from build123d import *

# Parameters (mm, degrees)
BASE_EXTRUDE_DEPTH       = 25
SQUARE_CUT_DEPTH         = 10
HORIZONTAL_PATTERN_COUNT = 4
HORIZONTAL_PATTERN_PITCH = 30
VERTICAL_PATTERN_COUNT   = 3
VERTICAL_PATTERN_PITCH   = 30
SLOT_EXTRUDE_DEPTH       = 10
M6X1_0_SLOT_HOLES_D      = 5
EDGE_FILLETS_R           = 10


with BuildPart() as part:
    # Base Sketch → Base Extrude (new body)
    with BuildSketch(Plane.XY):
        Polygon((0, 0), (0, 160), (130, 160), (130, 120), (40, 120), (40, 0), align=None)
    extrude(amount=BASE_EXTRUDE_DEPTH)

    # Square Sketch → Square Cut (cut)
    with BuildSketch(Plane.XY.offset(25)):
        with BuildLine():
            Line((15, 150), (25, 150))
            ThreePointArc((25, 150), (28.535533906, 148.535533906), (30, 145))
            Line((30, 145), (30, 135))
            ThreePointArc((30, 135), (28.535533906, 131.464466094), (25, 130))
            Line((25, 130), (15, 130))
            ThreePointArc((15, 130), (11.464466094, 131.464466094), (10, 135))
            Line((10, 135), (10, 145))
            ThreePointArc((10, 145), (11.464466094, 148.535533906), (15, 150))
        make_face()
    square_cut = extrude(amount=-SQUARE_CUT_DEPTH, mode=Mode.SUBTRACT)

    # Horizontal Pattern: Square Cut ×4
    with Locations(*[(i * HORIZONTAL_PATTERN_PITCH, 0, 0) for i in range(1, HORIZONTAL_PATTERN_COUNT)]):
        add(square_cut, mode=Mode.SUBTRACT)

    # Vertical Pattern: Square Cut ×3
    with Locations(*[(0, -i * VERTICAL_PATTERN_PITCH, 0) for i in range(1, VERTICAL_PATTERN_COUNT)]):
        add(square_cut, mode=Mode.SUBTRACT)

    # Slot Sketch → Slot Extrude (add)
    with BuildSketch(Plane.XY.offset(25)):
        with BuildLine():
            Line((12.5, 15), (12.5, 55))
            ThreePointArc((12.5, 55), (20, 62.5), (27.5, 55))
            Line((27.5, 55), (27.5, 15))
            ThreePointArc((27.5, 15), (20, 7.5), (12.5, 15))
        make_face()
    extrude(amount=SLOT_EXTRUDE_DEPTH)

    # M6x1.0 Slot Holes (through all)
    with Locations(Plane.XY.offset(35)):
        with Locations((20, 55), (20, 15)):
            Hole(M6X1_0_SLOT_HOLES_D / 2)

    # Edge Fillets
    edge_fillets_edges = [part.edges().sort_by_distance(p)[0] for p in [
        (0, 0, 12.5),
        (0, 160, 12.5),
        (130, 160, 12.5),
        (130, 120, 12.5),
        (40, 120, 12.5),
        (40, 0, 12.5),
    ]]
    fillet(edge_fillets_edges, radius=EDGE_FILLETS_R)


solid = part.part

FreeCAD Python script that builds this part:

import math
import FreeCAD as App
import Part
import Sketcher
from FreeCAD import Vector


def edges_at(feature, points):
    """Names of the edges that pass closest to the given points."""
    edges = feature.Shape.Edges
    near = lambda p: min(range(len(edges)), key=lambda i: edges[i].distToShape(Part.Vertex(*p))[0])
    return sorted({f"Edge{near(p) + 1}" for p in points})


def add_polygon(sketch, points):
    """Adds a closed chain of lines whose ends are joined by coincident constraints."""
    first, n = sketch.GeometryCount, len(points)
    for a, b in zip(points, points[1:] + points[:1]):
        sketch.addGeometry(Part.LineSegment(App.Vector(*a, 0), App.Vector(*b, 0)), False)
    for i in range(n):
        sketch.addConstraint(Sketcher.Constraint("Coincident", first + i, 2, first + (i + 1) % n, 1))

doc = App.newDocument("Part")
body = doc.addObject("PartDesign::Body", "Body")

# Sketch on XY plane
sketch1 = doc.addObject("Sketcher::SketchObject", "Sketch")
body.addObject(sketch1)
sketch1.AttachmentSupport = (doc.XY_Plane, [""])
sketch1.MapMode = "FlatFace"
add_polygon(sketch1, [(0, 160), (0, 0), (40, 0), (40, 120), (130, 120), (130, 160)])  # lines 0-5
sketch1.addConstraint(Sketcher.Constraint("Vertical", 0))
sketch1.addConstraint(Sketcher.Constraint("Horizontal", 1))
sketch1.addConstraint(Sketcher.Constraint("Vertical", 2))
sketch1.addConstraint(Sketcher.Constraint("Horizontal", 3))
sketch1.addConstraint(Sketcher.Constraint("Vertical", 4))
sketch1.addConstraint(Sketcher.Constraint("Horizontal", 5))
sketch1.addConstraint(Sketcher.Constraint("Coincident", 0, 2, -1, 1))
sketch1.addConstraint(Sketcher.Constraint("Equal", 1, 4))
sketch1.addConstraint(Sketcher.Constraint("DistanceX", 1, 1, 1, 2, 40.0))
sketch1.addConstraint(Sketcher.Constraint("DistanceX", 3, 1, 3, 2, 90.0))
sketch1.addConstraint(Sketcher.Constraint("DistanceY", 0, 2, 0, 1, 160.0))
pad1 = doc.addObject("PartDesign::Pad", "Pad")
body.addObject(pad1)
pad1.Profile = sketch1
pad1.Length = 25

# Sketch on XY plane
sketch2 = doc.addObject("Sketcher::SketchObject", "Sketch001")
body.addObject(sketch2)
sketch2.AttachmentSupport = (doc.XY_Plane, [""])
sketch2.MapMode = "FlatFace"
sketch2.AttachmentOffset = App.Placement(Vector(0, 0, 25), App.Rotation())
sketch2.addGeometry(Part.LineSegment(Vector(25, 150, 0), Vector(15, 150, 0)), False)
sketch2.addGeometry(Part.ArcOfCircle(Part.Circle(Vector(15, 145, 0), Vector(0, 0, 1), 5), math.radians(90), math.radians(180)), False)
sketch2.addGeometry(Part.LineSegment(Vector(10, 145, 0), Vector(10, 135, 0)), False)
sketch2.addGeometry(Part.ArcOfCircle(Part.Circle(Vector(15, 135, 0), Vector(0, 0, 1), 5), math.radians(180), math.radians(270)), False)
sketch2.addGeometry(Part.LineSegment(Vector(15, 130, 0), Vector(25, 130, 0)), False)
sketch2.addGeometry(Part.ArcOfCircle(Part.Circle(Vector(25, 135, 0), Vector(0, 0, 1), 5), math.radians(-90), math.radians(0)), False)
sketch2.addGeometry(Part.LineSegment(Vector(30, 135, 0), Vector(30, 145, 0)), False)
sketch2.addGeometry(Part.ArcOfCircle(Part.Circle(Vector(25, 145, 0), Vector(0, 0, 1), 5), math.radians(0), math.radians(90)), False)
sketch2.addConstraint(Sketcher.Constraint("Tangent", 0, 2, 1, 1))
sketch2.addConstraint(Sketcher.Constraint("Tangent", 1, 2, 2, 1))
sketch2.addConstraint(Sketcher.Constraint("Tangent", 2, 2, 3, 1))
sketch2.addConstraint(Sketcher.Constraint("Tangent", 3, 2, 4, 1))
sketch2.addConstraint(Sketcher.Constraint("Tangent", 4, 2, 5, 1))
sketch2.addConstraint(Sketcher.Constraint("Tangent", 5, 2, 6, 1))
sketch2.addConstraint(Sketcher.Constraint("Tangent", 6, 2, 7, 1))
sketch2.addConstraint(Sketcher.Constraint("Tangent", 7, 2, 0, 1))
sketch2.addConstraint(Sketcher.Constraint("Horizontal", 0))
sketch2.addConstraint(Sketcher.Constraint("Vertical", 2))
sketch2.addConstraint(Sketcher.Constraint("Horizontal", 4))
sketch2.addConstraint(Sketcher.Constraint("Vertical", 6))
sketch2.addConstraint(Sketcher.Constraint("Equal", 1, 3))
sketch2.addConstraint(Sketcher.Constraint("Equal", 3, 5))
sketch2.addConstraint(Sketcher.Constraint("Equal", 5, 7))
sketch2.addConstraint(Sketcher.Constraint("Equal", 4, 2))
sketch2.addConstraint(Sketcher.Constraint("Radius", 1, 5.0))
sketch2.addConstraint(Sketcher.Constraint("DistanceX", 0, 2, 0, 1, 10.0))
sketch2.addConstraint(Sketcher.Constraint("DistanceX", -1, 1, 1, 3, 15.0))
sketch2.addConstraint(Sketcher.Constraint("DistanceY", -1, 1, 1, 3, 145.0))
pocket1 = doc.addObject("PartDesign::Pocket", "Pocket")
body.addObject(pocket1)
pocket1.Profile = sketch2
pocket1.Length = 10
doc.recompute()

linearpattern = doc.addObject("PartDesign::LinearPattern", "LinearPattern")
body.addObject(linearpattern)
linearpattern.Originals = [pocket1]
linearpattern.Direction = (doc.X_Axis, [""])
linearpattern.Mode = "offset"
linearpattern.Offset = 30
linearpattern.Occurrences = 4
body.Tip = linearpattern
doc.recompute()

linearpattern2 = doc.addObject("PartDesign::LinearPattern", "LinearPattern001")
body.addObject(linearpattern2)
linearpattern2.Originals = [pocket1]
linearpattern2.Direction = (doc.Y_Axis, [""])
linearpattern2.Mode = "offset"
linearpattern2.Offset = 30
linearpattern2.Occurrences = 3
linearpattern2.Reversed = True
body.Tip = linearpattern2

# Sketch on XY plane
sketch3 = doc.addObject("Sketcher::SketchObject", "Sketch002")
body.addObject(sketch3)
sketch3.AttachmentSupport = (doc.XY_Plane, [""])
sketch3.MapMode = "FlatFace"
sketch3.AttachmentOffset = App.Placement(Vector(0, 0, 25), App.Rotation())
sketch3.addGeometry(Part.LineSegment(Vector(12, 55, 0), Vector(12, 15, 0)), False)
sketch3.addGeometry(Part.ArcOfCircle(Part.Circle(Vector(20, 15, 0), Vector(0, 0, 1), 8), math.radians(180), math.radians(360)), False)
sketch3.addGeometry(Part.LineSegment(Vector(28, 15, 0), Vector(28, 55, 0)), False)
sketch3.addGeometry(Part.ArcOfCircle(Part.Circle(Vector(20, 55, 0), Vector(0, 0, 1), 8), math.radians(0), math.radians(180)), False)
sketch3.addConstraint(Sketcher.Constraint("Tangent", 0, 2, 1, 1))
sketch3.addConstraint(Sketcher.Constraint("Tangent", 1, 2, 2, 1))
sketch3.addConstraint(Sketcher.Constraint("Tangent", 2, 2, 3, 1))
sketch3.addConstraint(Sketcher.Constraint("Tangent", 3, 2, 0, 1))
sketch3.addConstraint(Sketcher.Constraint("Vertical", 0))
sketch3.addConstraint(Sketcher.Constraint("Vertical", 2))
sketch3.addConstraint(Sketcher.Constraint("Radius", 1, 7.5))
sketch3.addConstraint(Sketcher.Constraint("DistanceY", 0, 2, 0, 1, 40.0))
sketch3.addConstraint(Sketcher.Constraint("DistanceX", -1, 1, 1, 3, 20.0))
sketch3.addConstraint(Sketcher.Constraint("DistanceY", -1, 1, 1, 3, 15.0))
pad2 = doc.addObject("PartDesign::Pad", "Pad001")
body.addObject(pad2)
pad2.Profile = sketch3
pad2.Length = 10

# Sketch on XY plane
sketch4 = doc.addObject("Sketcher::SketchObject", "Sketch003")
body.addObject(sketch4)
sketch4.AttachmentSupport = (doc.XY_Plane, [""])
sketch4.MapMode = "FlatFace"
sketch4.AttachmentOffset = App.Placement(Vector(0, 0, 35), App.Rotation())
sketch4.addGeometry(Part.Circle(Vector(20, 55, 0), Vector(0, 0, 1), 2.5), False)
sketch4.addGeometry(Part.Circle(Vector(20, 15, 0), Vector(0, 0, 1), 2.5), False)
sketch4.addConstraint(Sketcher.Constraint("Equal", 0, 1))
sketch4.addConstraint(Sketcher.Constraint("Vertical", 0, 3, 1, 3))
sketch4.addConstraint(Sketcher.Constraint("Diameter", 0, 5.0))
sketch4.addConstraint(Sketcher.Constraint("DistanceX", -1, 1, 0, 3, 20.0))
sketch4.addConstraint(Sketcher.Constraint("DistanceY", -1, 1, 0, 3, 55.0))
sketch4.addConstraint(Sketcher.Constraint("DistanceY", -1, 1, 1, 3, 15.0))
doc.recompute()
hole = doc.addObject("PartDesign::Hole", "Hole")
body.addObject(hole)
hole.Profile = sketch4
hole.ThreadType = "None"
hole.Diameter = 5
hole.DepthType = "ThroughAll"
doc.recompute()

fillet = doc.addObject("PartDesign::Fillet", "Fillet")
body.addObject(fillet)
fillet.Base = (hole, edges_at(hole, [
    (0, 0, 12.5),
    (0, 160, 12.5),
    (130, 160, 12.5),
    (130, 120, 12.5),
    (40, 120, 12.5),
    (40, 0, 12.5),
]))
fillet.Radius = 10

doc.recompute()
